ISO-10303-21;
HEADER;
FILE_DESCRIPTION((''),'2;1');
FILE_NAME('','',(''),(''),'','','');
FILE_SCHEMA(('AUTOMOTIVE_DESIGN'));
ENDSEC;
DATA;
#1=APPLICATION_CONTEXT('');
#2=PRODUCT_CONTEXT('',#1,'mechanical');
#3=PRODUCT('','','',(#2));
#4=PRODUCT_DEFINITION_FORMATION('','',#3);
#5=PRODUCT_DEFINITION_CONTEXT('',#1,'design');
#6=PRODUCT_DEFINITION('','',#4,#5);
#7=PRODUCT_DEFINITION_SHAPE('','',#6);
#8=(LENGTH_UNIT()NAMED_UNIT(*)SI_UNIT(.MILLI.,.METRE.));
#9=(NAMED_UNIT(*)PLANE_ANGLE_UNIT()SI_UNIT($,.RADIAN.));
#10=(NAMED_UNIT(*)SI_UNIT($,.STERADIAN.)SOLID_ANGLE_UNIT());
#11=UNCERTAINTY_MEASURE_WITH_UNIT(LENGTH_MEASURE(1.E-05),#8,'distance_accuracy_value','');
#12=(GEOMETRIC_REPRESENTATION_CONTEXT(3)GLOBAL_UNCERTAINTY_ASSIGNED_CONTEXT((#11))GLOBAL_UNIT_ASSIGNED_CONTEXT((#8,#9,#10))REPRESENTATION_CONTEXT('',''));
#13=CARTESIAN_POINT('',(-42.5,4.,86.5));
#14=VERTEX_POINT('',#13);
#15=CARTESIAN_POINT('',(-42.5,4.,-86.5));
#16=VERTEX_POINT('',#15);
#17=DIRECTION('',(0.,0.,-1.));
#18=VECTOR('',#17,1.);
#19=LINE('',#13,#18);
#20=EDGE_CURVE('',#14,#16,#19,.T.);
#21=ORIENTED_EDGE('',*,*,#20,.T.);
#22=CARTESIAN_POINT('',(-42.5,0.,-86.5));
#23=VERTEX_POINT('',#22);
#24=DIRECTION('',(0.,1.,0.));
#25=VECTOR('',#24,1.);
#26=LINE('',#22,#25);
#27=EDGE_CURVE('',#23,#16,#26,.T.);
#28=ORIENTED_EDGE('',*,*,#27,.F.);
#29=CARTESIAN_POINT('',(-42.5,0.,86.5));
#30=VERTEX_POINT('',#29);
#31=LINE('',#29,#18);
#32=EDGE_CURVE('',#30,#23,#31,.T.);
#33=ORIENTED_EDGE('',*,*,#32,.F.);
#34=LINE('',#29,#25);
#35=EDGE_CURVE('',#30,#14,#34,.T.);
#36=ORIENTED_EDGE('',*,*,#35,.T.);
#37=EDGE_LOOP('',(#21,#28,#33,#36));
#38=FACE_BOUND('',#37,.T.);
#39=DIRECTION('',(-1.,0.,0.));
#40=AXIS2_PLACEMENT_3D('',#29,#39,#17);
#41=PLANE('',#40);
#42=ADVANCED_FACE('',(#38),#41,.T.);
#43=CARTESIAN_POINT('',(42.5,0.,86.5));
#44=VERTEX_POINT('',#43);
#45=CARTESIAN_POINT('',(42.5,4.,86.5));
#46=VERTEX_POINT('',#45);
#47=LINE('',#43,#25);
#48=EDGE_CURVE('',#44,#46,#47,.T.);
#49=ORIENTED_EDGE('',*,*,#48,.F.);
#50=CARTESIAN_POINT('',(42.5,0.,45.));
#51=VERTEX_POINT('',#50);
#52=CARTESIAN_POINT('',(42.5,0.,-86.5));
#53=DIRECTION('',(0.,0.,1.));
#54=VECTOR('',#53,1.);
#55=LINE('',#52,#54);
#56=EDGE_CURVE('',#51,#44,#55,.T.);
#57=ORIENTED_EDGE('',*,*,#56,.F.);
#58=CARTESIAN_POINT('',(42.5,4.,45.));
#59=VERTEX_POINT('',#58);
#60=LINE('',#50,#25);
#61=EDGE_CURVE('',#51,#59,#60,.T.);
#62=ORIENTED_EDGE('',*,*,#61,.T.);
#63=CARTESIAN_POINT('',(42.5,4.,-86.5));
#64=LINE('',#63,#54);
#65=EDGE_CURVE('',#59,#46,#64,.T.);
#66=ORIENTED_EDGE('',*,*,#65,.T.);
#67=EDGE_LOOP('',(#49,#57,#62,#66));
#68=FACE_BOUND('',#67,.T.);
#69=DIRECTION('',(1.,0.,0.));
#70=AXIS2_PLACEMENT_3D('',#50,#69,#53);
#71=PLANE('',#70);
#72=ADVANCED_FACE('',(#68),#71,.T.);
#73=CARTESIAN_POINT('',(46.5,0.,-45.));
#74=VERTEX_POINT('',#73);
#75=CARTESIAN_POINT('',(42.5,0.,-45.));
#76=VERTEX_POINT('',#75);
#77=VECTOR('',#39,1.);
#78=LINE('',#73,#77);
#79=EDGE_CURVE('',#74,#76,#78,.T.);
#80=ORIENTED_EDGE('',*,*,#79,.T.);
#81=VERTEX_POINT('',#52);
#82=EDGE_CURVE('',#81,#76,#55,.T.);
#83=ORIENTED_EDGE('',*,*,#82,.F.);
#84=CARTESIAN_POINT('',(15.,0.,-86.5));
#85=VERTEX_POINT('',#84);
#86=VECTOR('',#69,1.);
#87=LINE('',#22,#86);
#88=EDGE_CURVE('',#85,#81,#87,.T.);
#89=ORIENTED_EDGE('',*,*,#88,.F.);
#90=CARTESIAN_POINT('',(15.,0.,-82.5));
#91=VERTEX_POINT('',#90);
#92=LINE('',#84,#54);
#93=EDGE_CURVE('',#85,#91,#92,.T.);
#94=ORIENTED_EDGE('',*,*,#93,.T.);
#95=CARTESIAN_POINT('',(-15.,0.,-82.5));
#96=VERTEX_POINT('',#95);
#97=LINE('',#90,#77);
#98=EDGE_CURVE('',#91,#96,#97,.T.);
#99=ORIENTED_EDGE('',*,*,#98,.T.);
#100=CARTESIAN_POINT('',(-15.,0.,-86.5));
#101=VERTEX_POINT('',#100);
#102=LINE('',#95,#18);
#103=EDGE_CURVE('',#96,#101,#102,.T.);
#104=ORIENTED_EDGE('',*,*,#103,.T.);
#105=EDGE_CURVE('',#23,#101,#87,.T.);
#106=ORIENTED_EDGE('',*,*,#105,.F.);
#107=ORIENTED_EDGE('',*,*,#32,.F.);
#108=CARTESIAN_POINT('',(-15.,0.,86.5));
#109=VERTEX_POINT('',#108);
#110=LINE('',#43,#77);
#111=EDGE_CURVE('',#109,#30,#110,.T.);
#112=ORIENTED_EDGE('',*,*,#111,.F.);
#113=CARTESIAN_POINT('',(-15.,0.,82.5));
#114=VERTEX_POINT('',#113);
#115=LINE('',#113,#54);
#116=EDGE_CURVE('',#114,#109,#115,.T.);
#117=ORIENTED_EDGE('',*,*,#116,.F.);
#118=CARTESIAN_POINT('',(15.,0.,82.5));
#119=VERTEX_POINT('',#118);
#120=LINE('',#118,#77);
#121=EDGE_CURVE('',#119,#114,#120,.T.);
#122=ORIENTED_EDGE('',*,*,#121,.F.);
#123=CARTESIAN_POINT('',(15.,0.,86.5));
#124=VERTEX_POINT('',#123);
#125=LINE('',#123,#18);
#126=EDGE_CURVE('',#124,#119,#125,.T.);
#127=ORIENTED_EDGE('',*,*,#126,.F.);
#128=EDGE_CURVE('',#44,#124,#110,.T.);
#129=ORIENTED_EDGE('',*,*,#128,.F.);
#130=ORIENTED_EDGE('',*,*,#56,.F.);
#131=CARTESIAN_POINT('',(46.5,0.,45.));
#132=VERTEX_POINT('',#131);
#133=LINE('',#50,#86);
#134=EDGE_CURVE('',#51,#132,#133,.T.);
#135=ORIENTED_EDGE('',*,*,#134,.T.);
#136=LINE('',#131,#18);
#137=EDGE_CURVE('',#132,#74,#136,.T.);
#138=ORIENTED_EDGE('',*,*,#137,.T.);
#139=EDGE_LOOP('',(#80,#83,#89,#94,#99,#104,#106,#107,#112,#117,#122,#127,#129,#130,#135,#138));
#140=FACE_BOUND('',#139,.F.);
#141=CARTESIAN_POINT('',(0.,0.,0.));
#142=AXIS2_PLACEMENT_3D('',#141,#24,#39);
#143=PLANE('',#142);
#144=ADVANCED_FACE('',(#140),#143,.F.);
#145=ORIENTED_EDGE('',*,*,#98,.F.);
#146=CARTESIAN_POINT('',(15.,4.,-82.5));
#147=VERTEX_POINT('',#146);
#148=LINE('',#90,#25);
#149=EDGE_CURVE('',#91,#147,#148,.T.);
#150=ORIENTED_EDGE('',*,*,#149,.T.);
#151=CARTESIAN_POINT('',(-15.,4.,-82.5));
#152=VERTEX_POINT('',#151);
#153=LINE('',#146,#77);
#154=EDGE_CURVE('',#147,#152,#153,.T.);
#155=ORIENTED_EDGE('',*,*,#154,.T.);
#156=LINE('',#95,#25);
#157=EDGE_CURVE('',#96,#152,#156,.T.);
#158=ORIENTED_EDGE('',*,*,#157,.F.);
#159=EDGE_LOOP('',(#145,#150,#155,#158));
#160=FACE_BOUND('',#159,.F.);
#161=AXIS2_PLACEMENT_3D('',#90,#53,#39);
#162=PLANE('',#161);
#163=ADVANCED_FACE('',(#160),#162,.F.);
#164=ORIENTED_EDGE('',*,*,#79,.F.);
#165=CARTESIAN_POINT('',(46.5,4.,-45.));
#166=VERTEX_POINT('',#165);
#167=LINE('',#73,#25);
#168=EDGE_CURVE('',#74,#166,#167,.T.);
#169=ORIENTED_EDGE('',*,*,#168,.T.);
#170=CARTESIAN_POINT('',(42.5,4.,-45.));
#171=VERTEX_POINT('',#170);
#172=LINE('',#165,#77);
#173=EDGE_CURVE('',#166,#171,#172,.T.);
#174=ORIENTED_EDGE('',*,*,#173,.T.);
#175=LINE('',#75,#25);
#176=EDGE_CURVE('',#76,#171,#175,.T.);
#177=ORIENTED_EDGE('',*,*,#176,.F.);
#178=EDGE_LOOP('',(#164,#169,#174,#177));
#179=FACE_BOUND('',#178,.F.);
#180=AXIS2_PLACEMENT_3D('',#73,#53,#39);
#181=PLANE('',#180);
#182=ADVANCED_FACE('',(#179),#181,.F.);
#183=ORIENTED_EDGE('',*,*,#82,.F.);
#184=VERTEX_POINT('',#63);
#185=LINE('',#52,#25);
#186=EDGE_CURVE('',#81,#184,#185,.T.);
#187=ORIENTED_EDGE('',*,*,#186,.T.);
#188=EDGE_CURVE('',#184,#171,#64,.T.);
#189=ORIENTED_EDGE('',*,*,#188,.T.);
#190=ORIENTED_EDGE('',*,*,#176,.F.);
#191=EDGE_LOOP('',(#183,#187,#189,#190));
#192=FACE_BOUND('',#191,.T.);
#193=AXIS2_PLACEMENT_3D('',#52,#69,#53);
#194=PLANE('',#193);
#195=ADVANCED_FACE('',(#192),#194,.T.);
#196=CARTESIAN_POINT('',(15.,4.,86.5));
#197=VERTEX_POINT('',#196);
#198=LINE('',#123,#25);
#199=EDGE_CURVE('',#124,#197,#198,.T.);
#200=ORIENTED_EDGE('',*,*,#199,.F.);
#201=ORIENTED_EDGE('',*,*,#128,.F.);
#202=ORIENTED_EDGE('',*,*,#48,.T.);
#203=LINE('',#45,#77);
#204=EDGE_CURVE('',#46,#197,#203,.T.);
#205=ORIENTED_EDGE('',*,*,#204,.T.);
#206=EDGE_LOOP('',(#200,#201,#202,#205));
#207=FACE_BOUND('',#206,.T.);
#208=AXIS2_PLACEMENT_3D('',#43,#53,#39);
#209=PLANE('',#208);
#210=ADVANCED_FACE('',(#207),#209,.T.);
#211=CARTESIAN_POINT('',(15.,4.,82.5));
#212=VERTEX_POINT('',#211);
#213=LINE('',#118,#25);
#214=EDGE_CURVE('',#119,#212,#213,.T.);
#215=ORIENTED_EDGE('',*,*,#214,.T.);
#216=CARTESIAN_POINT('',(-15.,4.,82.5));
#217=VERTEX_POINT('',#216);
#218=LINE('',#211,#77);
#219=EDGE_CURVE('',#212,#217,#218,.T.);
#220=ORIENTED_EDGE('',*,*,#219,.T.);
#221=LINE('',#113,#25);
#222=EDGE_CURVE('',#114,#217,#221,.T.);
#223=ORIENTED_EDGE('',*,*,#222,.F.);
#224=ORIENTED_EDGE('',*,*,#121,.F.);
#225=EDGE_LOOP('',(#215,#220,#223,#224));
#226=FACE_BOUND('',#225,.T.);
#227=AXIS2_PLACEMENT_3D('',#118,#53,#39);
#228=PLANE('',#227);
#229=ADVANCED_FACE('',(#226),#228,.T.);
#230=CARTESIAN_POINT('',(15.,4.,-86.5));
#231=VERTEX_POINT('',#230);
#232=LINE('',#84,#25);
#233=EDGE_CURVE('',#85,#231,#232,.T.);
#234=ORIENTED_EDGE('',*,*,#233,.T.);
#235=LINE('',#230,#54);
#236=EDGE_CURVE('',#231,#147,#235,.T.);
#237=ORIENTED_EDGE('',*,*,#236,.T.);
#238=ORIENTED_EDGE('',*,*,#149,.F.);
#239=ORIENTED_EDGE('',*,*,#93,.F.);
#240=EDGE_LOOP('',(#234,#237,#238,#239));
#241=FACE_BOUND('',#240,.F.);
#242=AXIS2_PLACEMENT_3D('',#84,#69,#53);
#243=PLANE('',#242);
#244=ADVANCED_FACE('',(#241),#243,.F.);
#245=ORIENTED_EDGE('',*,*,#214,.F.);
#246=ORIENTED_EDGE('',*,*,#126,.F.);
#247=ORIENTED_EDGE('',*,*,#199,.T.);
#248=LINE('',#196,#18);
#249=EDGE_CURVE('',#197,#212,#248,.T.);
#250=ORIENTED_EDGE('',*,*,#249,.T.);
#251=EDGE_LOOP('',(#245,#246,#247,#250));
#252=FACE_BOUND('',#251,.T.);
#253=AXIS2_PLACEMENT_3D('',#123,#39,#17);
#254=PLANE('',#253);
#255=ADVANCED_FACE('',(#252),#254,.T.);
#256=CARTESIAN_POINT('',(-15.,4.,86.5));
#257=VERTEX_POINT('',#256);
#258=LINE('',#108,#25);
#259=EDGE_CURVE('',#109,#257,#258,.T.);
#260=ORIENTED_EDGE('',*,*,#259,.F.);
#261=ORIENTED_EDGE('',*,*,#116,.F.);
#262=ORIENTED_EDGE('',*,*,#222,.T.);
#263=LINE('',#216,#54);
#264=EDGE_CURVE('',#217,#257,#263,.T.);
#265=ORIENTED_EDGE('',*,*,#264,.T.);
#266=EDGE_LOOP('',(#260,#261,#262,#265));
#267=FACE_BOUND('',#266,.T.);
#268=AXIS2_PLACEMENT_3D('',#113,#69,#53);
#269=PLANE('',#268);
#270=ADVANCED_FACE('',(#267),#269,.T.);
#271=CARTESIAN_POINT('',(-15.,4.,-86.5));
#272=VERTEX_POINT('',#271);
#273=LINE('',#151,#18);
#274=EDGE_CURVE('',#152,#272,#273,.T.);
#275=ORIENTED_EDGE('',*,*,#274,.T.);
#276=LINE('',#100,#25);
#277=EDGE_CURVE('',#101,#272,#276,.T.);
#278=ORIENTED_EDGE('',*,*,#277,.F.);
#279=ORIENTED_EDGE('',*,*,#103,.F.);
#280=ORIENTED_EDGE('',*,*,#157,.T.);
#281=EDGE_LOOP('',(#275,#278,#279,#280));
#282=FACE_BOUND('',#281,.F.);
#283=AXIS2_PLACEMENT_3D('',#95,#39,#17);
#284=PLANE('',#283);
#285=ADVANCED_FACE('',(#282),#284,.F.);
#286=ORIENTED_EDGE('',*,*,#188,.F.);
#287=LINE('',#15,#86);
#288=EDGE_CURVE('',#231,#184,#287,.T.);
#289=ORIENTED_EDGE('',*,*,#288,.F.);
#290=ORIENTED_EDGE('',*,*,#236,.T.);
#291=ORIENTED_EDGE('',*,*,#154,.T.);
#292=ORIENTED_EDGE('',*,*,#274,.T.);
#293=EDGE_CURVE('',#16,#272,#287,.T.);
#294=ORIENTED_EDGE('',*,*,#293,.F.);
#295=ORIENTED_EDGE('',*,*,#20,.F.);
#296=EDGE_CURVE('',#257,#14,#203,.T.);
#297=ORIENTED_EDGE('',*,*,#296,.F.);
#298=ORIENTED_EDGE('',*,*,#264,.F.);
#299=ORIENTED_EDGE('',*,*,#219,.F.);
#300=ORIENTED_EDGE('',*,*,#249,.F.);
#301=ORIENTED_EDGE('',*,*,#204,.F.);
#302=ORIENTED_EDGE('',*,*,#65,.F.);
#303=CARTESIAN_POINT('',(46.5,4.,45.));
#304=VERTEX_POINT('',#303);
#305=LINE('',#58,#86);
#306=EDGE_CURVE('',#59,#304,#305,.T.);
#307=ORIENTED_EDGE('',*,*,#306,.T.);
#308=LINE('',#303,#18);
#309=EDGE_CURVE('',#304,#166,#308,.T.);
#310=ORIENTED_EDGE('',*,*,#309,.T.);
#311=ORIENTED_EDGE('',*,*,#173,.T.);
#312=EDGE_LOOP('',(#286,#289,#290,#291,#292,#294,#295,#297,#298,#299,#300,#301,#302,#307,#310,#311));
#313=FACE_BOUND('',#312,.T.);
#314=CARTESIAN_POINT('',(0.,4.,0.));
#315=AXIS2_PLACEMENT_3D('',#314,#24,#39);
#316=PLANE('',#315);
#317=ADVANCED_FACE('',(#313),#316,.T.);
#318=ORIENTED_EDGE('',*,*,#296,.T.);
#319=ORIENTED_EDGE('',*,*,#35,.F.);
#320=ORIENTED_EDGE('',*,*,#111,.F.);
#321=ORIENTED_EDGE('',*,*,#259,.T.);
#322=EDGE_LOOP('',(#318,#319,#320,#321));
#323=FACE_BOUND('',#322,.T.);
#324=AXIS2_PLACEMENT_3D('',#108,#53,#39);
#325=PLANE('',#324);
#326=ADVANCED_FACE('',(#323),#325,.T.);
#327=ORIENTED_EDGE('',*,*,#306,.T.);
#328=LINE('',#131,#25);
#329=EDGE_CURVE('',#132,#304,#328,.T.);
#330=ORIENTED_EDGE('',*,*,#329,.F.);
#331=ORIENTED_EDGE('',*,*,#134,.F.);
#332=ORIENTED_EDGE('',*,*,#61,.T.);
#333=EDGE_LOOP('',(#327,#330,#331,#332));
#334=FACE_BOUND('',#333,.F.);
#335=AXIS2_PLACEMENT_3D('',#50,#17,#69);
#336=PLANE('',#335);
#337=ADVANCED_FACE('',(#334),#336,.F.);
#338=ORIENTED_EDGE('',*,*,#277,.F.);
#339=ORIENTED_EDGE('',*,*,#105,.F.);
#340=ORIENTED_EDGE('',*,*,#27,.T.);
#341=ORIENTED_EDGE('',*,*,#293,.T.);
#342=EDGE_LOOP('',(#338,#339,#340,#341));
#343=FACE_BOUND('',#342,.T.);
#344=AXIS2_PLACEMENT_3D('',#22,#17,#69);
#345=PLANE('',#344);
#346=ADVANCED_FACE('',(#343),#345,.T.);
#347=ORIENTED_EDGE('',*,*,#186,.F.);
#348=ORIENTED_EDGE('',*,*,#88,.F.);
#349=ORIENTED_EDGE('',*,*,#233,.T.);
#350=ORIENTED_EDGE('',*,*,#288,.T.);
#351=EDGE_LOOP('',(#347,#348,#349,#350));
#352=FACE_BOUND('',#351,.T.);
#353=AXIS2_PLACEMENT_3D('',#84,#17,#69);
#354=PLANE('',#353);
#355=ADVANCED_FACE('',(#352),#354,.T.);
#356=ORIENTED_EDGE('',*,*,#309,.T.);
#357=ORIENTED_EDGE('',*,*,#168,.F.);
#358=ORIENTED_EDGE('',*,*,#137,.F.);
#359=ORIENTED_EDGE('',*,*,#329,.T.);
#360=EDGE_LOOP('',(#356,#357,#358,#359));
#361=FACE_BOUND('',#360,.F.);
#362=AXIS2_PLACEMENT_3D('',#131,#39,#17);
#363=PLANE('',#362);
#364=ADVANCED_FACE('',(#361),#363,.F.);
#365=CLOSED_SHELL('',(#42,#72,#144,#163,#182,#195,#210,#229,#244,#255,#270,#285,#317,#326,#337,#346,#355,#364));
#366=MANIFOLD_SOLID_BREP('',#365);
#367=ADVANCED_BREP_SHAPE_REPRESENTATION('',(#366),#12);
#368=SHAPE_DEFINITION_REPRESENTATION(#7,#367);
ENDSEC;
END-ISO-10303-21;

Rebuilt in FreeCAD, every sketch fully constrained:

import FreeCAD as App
import Part
import Sketcher

V = App.Vector

doc = App.newDocument("Part")
body = doc.addObject("PartDesign::Body", "Body")

# Sketch on XZ plane
sketch1 = body.newObject("Sketcher::SketchObject", "Sketch")
sketch1.AttachmentSupport = (doc.getObject("XZ_Plane"), [""])
sketch1.MapMode = "FlatFace"
sketch1.addGeometry([
    Part.LineSegment(V(15, 86.5, 0), V(42.5, 86.5, 0)),  # 0
    Part.LineSegment(V(42.5, 86.5, 0), V(42.5, 45, 0)),  # 1
    Part.LineSegment(V(42.5, 45, 0), V(46.5, 45, 0)),  # 2
    Part.LineSegment(V(46.5, 45, 0), V(46.5, -45, 0)),  # 3
    Part.LineSegment(V(46.5, -45, 0), V(42.5, -45, 0)),  # 4
    Part.LineSegment(V(42.5, -45, 0), V(42.5, -86.5, 0)),  # 5
    Part.LineSegment(V(42.5, -86.5, 0), V(15, -86.5, 0)),  # 6
    Part.LineSegment(V(15, -86.5, 0), V(15, -82.5, 0)),  # 7
    Part.LineSegment(V(15, -82.5, 0), V(-15, -82.5, 0)),  # 8
    Part.LineSegment(V(-15, -82.5, 0), V(-15, -86.5, 0)),  # 9
    Part.LineSegment(V(-15, -86.5, 0), V(-42.5, -86.5, 0)),  # 10
    Part.LineSegment(V(-42.5, -86.5, 0), V(-42.5, 86.5, 0)),  # 11
    Part.LineSegment(V(-42.5, 86.5, 0), V(-15, 86.5, 0)),  # 12
    Part.LineSegment(V(-15, 86.5, 0), V(-15, 82.5, 0)),  # 13
    Part.LineSegment(V(-15, 82.5, 0), V(15, 82.5, 0)),  # 14
    Part.LineSegment(V(15, 82.5, 0), V(15, 86.5, 0)),  # 15
], False)
sketch1.addConstraint([
    Sketcher.Constraint("Coincident", 0, 2, 1, 1),
    Sketcher.Constraint("Coincident", 1, 2, 2, 1),
    Sketcher.Constraint("Coincident", 2, 2, 3, 1),
    Sketcher.Constraint("Coincident", 3, 2, 4, 1),
    Sketcher.Constraint("Coincident", 4, 2, 5, 1),
    Sketcher.Constraint("Coincident", 5, 2, 6, 1),
    Sketcher.Constraint("Coincident", 6, 2, 7, 1),
    Sketcher.Constraint("Coincident", 7, 2, 8, 1),
    Sketcher.Constraint("Coincident", 8, 2, 9, 1),
    Sketcher.Constraint("Coincident", 9, 2, 10, 1),
    Sketcher.Constraint("Coincident", 10, 2, 11, 1),
    Sketcher.Constraint("Coincident", 11, 2, 12, 1),
    Sketcher.Constraint("Coincident", 12, 2, 13, 1),
    Sketcher.Constraint("Coincident", 13, 2, 14, 1),
    Sketcher.Constraint("Coincident", 14, 2, 15, 1),
    Sketcher.Constraint("Coincident", 15, 2, 0, 1),
    Sketcher.Constraint("Horizontal", 0),
    Sketcher.Constraint("Vertical", 1),
    Sketcher.Constraint("Horizontal", 2),
    Sketcher.Constraint("Vertical", 3),
    Sketcher.Constraint("Horizontal", 4),
    Sketcher.Constraint("Vertical", 5),
    Sketcher.Constraint("Horizontal", 6),
    Sketcher.Constraint("Vertical", 7),
    Sketcher.Constraint("Horizontal", 8),
    Sketcher.Constraint("Vertical", 9),
    Sketcher.Constraint("Horizontal", 10),
    Sketcher.Constraint("Vertical", 11),
    Sketcher.Constraint("Horizontal", 12),
    Sketcher.Constraint("Vertical", 13),
    Sketcher.Constraint("Horizontal", 14),
    Sketcher.Constraint("Vertical", 15),
    Sketcher.Constraint("Symmetric", 0, 2, 10, 2, -1, 1),
    Sketcher.Constraint("Symmetric", 5, 2, 11, 2, -1, 1),
    Sketcher.Constraint("Symmetric", 7, 2, 13, 2, -1, 1),
    Sketcher.Constraint("Symmetric", 6, 2, 9, 2, -2),
    Sketcher.Constraint("Vertical", 7, 2, 14, 2),
    Sketcher.Constraint("Equal", 1, 5),
    Sketcher.Constraint("Equal", 4, 7),
    Sketcher.Constraint("DistanceX", 2, 1, 2, 2, 4.0),
    Sketcher.Constraint("DistanceX", 8, 2, 8, 1, 30.0),
    Sketcher.Constraint("DistanceY", 3, 2, 3, 1, 90.0),
    Sketcher.Constraint("DistanceY", 11, 1, 11, 2, 173.0),
    Sketcher.Constraint("DistanceX", 10, 2, 5, 2, 85.0),
])
pad1 = body.newObject("PartDesign::Pad", "Pad")
pad1.Profile = sketch1
pad1.Length = 4
pad1.Reversed = True

doc.recompute()
